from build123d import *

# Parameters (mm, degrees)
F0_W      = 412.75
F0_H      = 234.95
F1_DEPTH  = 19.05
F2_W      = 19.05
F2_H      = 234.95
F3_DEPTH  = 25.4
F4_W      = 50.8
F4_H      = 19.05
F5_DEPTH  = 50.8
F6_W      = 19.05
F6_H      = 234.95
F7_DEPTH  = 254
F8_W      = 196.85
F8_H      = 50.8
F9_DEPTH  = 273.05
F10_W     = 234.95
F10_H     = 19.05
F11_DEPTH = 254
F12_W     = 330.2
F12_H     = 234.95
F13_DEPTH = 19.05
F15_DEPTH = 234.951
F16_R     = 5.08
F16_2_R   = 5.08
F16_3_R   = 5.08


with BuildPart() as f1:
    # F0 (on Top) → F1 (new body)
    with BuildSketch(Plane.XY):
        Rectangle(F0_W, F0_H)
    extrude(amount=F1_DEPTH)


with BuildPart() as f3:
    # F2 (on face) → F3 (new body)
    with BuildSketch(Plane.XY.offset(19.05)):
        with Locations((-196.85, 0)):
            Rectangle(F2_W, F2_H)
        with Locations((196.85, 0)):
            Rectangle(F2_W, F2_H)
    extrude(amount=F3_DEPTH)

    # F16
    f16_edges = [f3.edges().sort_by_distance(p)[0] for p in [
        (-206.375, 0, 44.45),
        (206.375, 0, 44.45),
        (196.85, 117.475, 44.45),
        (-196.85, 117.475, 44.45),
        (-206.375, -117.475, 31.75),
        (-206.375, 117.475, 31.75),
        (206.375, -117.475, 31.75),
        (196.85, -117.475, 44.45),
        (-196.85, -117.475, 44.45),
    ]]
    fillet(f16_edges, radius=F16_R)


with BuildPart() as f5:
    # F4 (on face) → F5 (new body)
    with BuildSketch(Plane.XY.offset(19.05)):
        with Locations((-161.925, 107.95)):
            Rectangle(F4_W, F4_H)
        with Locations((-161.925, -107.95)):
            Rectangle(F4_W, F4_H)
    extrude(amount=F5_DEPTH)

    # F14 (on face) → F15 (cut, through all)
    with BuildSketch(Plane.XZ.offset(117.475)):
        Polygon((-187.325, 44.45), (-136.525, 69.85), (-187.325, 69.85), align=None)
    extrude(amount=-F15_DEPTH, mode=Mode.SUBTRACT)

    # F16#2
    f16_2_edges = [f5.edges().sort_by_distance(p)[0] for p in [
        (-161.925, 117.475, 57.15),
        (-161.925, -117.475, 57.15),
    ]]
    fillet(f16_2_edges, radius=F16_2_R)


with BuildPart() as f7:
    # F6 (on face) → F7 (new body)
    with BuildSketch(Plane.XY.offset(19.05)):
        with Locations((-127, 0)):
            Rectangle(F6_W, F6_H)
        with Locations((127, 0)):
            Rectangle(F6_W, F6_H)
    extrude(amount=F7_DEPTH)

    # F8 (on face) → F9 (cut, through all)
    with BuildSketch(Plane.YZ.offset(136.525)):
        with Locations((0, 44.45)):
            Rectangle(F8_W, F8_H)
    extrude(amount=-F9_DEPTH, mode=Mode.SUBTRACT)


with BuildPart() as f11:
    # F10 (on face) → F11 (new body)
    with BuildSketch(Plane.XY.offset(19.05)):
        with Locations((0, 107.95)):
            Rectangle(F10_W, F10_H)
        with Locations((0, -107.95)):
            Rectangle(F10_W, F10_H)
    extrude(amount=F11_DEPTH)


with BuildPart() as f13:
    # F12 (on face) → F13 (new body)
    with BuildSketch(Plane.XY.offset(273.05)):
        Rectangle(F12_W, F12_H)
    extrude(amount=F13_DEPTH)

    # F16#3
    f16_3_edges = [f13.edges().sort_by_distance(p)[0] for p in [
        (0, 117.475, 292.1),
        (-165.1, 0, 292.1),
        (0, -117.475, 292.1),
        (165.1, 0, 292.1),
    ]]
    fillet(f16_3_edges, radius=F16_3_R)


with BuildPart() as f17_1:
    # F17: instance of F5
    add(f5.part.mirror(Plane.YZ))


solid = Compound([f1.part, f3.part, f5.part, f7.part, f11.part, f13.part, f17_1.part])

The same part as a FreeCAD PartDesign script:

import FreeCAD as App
import Part
import Sketcher

V = App.Vector
Q = App.Units.Quantity


def edges_at(feature, points):
    """Names of the edges that pass closest to the given points."""
    edges = feature.Shape.Edges
    near = lambda p: min(range(len(edges)), key=lambda i: edges[i].distToShape(Part.Vertex(*p))[0])
    return sorted({f"Edge{near(p) + 1}" for p in points})


def add_polygon(sketch, points):
    """Adds a closed chain of lines whose ends are joined by coincident constraints."""
    first, n = sketch.GeometryCount, len(points)
    for a, b in zip(points, points[1:] + points[:1]):
        sketch.addGeometry(Part.LineSegment(App.Vector(*a, 0), App.Vector(*b, 0)), False)
    for i in range(n):
        sketch.addConstraint(Sketcher.Constraint("Coincident", first + i, 2, first + (i + 1) % n, 1))

doc = App.newDocument("Part")
params = doc.addObject("Spreadsheet::Sheet", "Params")
for row, (alias, value) in enumerate([
    ("sketch1_width", "16.25 in"),
    ("sketch1_height", "9.25 in"),
    ("pad1_length", "0.75 in"),
    ("sketch2_width", "0.75 in"),
    ("sketch2_height", "9.25 in"),
    ("pad2_length", "1 in"),
    ("fillet_radius", "0.2 in"),
    ("sketch3_width", "2 in"),
    ("sketch3_height", "0.75 in"),
    ("pad3_length", "2 in"),
    ("sketch4_width", "2 in"),
    ("sketch4_height", "1 in"),
    ("fillet2_radius", "0.2 in"),
    ("sketch5_width", "0.75 in"),
    ("sketch5_height", "9.25 in"),
    ("pad4_length", "10 in"),
    ("sketch6_height", "2 in"),
    ("sketch6_width", "7.75 in"),
    ("sketch7_width", "9.25 in"),
    ("sketch7_height", "0.75 in"),
    ("pad5_length", "10 in"),
    ("sketch8_width", "13 in"),
    ("sketch8_height", "9.25 in"),
    ("pad6_length", "0.75 in"),
    ("fillet3_radius", "0.2 in"),
], start=1):
    params.set(f"A{row}", alias)
    params.set(f"B{row}", "=" + value)
    params.setAlias(f"B{row}", alias)

body = doc.addObject("PartDesign::Body", "Body")

# Sketch on XY plane
sketch1 = doc.addObject("Sketcher::SketchObject", "Sketch")
body.addObject(sketch1)
sketch1.AttachmentSupport = (doc.XY_Plane, [""])
sketch1.MapMode = "FlatFace"
add_polygon(sketch1, [(-206, 117), (-206, -117), (206, -117), (206, 117)])  # lines 0-3
sketch1.addConstraint([
    Sketcher.Constraint("Vertical", 0),
    Sketcher.Constraint("Horizontal", 1),
    Sketcher.Constraint("Vertical", 2),
    Sketcher.Constraint("Horizontal", 3),
    Sketcher.Constraint("Symmetric", 0, 2, 2, 2, -1, 1),
    Sketcher.Constraint("DistanceX", 1, 1, 1, 2, Q("16.25 in")),
    Sketcher.Constraint("DistanceY", 0, 2, 0, 1, Q("9.25 in")),
])
sketch1.setExpression("Constraints[9]", "Params.sketch1_width")
sketch1.setExpression("Constraints[10]", "Params.sketch1_height")
pad1 = doc.addObject("PartDesign::Pad", "Pad")
body.addObject(pad1)
pad1.Profile = sketch1
pad1.setExpression("Length", "Params.pad1_length")
body2 = doc.addObject("PartDesign::Body", "Body001")
body2.AllowCompound = True

# Sketch on XY plane
sketch2 = doc.addObject("Sketcher::SketchObject", "Sketch001")
body2.addObject(sketch2)
sketch2.AttachmentSupport = (doc.getObject("XY_Plane001"), [""])
sketch2.MapMode = "FlatFace"
sketch2.AttachmentOffset = App.Placement(V(0, 0, 0.75 * 25.4), App.Rotation())
add_polygon(sketch2, [(-206, 117), (-206, -117), (-187, -117), (-187, 117)])  # lines 0-3
add_polygon(sketch2, [(187, 117), (187, -117), (206, -117), (206, 117)])  # lines 4-7
sketch2.addConstraint([
    Sketcher.Constraint("Vertical", 0),
    Sketcher.Constraint("Horizontal", 1),
    Sketcher.Constraint("Vertical", 2),
    Sketcher.Constraint("Horizontal", 3),
    Sketcher.Constraint("Vertical", 4),
    Sketcher.Constraint("Horizontal", 5),
    Sketcher.Constraint("Vertical", 6),
    Sketcher.Constraint("Horizontal", 7),
    Sketcher.Constraint("Symmetric", 2, 2, 4, 2, -1, 1),
    Sketcher.Constraint("Symmetric", 0, 2, 6, 2, -1, 1),
    Sketcher.Constraint("Horizontal", 1, 2, 4, 2),
    Sketcher.Constraint("DistanceX", 1, 1, 1, 2, Q("0.75 in")),
    Sketcher.Constraint("DistanceY", 0, 2, 0, 1, Q("9.25 in")),
    Sketcher.Constraint("DistanceX", 0, 2, 4, 2, Q("15.5 in")),
])
sketch2.setExpression("Constraints[19]", "Params.sketch2_width")
sketch2.setExpression("Constraints[20]", "Params.sketch2_height")
pad2 = doc.addObject("PartDesign::Pad", "Pad001")
body2.addObject(pad2)
pad2.Profile = sketch2
pad2.setExpression("Length", "Params.pad2_length")
doc.recompute()

fillet = doc.addObject("PartDesign::Fillet", "Fillet")
body2.addObject(fillet)
fillet.Base = (pad2, edges_at(pad2, [
    (-206.375, 0, 44.45),
    (206.375, 0, 44.45),
    (196.85, 117.475, 44.45),
    (-196.85, 117.475, 44.45),
    (-206.375, -117.475, 31.75),
    (-206.375, 117.475, 31.75),
    (206.375, -117.475, 31.75),
    (196.85, -117.475, 44.45),
    (-196.85, -117.475, 44.45),
]))
fillet.setExpression("Radius", "Params.fillet_radius")
body3 = doc.addObject("PartDesign::Body", "Body002")
body3.AllowCompound = True

# Sketch on XY plane
sketch3 = doc.addObject("Sketcher::SketchObject", "Sketch002")
body3.addObject(sketch3)
sketch3.AttachmentSupport = (doc.getObject("XY_Plane002"), [""])
sketch3.MapMode = "FlatFace"
sketch3.AttachmentOffset = App.Placement(V(0, 0, 0.75 * 25.4), App.Rotation())
add_polygon(sketch3, [(-187, 117), (-187, 98), (-137, 98), (-137, 117)])  # lines 0-3
add_polygon(sketch3, [(-187, -98), (-187, -117), (-137, -117), (-137, -98)])  # lines 4-7
sketch3.addConstraint([
    Sketcher.Constraint("Vertical", 0),
    Sketcher.Constraint("Horizontal", 1),
    Sketcher.Constraint("Vertical", 2),
    Sketcher.Constraint("Horizontal", 3),
    Sketcher.Constraint("Vertical", 4),
    Sketcher.Constraint("Horizontal", 5),
    Sketcher.Constraint("Vertical", 6),
    Sketcher.Constraint("Horizontal", 7),
    Sketcher.Constraint("Symmetric", 3, 2, 4, 2, -1),
    Sketcher.Constraint("Symmetric", 1, 2, 6, 2, -1),
    Sketcher.Constraint("DistanceX", 1, 1, 1, 2, Q("2 in")),
    Sketcher.Constraint("DistanceY", 0, 2, 0, 1, Q("0.75 in")),
    Sketcher.Constraint("DistanceY", 4, 2, 0, 2, Q("8.5 in")),
    Sketcher.Constraint("DistanceX", 0, 2, -1, 1, Q("7.375 in")),
])
sketch3.setExpression("Constraints[18]", "Params.sketch3_width")
sketch3.setExpression("Constraints[19]", "Params.sketch3_height")
pad3 = doc.addObject("PartDesign::Pad", "Pad002")
body3.addObject(pad3)
pad3.Profile = sketch3
pad3.setExpression("Length", "Params.pad3_length")

# Sketch on XZ plane
sketch4 = doc.addObject("Sketcher::SketchObject", "Sketch003")
body3.addObject(sketch4)
sketch4.AttachmentSupport = (doc.getObject("XZ_Plane002"), [""])
sketch4.MapMode = "FlatFace"
sketch4.AttachmentOffset = App.Placement(V(0, 0, 4.625 * 25.4), App.Rotation())
add_polygon(sketch4, [(-187, 44), (-137, 70), (-187, 70)])  # lines 0-2
sketch4.addConstraint([
    Sketcher.Constraint("Horizontal", 1),
    Sketcher.Constraint("Vertical", 2),
    Sketcher.Constraint("DistanceX", 1, 2, 1, 1, Q("2 in")),
    Sketcher.Constraint("DistanceY", 2, 2, 2, 1, Q("1 in")),
    Sketcher.Constraint("DistanceY", -1, 1, 0, 2, Q("2.75 in")),
    Sketcher.Constraint("DistanceX", 0, 2, -1, 1, Q("5.375 in")),
])
sketch4.setExpression("Constraints[5]", "Params.sketch4_width")
sketch4.setExpression("Constraints[6]", "Params.sketch4_height")
pocket1 = doc.addObject("PartDesign::Pocket", "Pocket")
body3.addObject(pocket1)
pocket1.Profile = sketch4
pocket1.Type = "ThroughAll"
doc.recompute()

fillet2 = doc.addObject("PartDesign::Fillet", "Fillet001")
body3.addObject(fillet2)
fillet2.Base = (pocket1, edges_at(pocket1, [(-161.925, 117.475, 57.15), (-161.925, -117.475, 57.15)]))
fillet2.setExpression("Radius", "Params.fillet2_radius")
body4 = doc.addObject("PartDesign::Body", "Body003")
body4.AllowCompound = True

# Sketch on XY plane
sketch5 = doc.addObject("Sketcher::SketchObject", "Sketch004")
body4.addObject(sketch5)
sketch5.AttachmentSupport = (doc.getObject("XY_Plane003"), [""])
sketch5.MapMode = "FlatFace"
sketch5.AttachmentOffset = App.Placement(V(0, 0, 0.75 * 25.4), App.Rotation())
add_polygon(sketch5, [(-137, 117), (-137, -117), (-117, -117), (-117, 117)])  # lines 0-3
add_polygon(sketch5, [(117, 117), (117, -117), (137, -117), (137, 117)])  # lines 4-7
sketch5.addConstraint([
    Sketcher.Constraint("Vertical", 0),
    Sketcher.Constraint("Horizontal", 1),
    Sketcher.Constraint("Vertical", 2),
    Sketcher.Constraint("Horizontal", 3),
    Sketcher.Constraint("Vertical", 4),
    Sketcher.Constraint("Horizontal", 5),
    Sketcher.Constraint("Vertical", 6),
    Sketcher.Constraint("Horizontal", 7),
    Sketcher.Constraint("Symmetric", 2, 2, 4, 2, -1, 1),
    Sketcher.Constraint("Symmetric", 0, 2, 6, 2, -1, 1),
    Sketcher.Constraint("Horizontal", 1, 2, 4, 2),
    Sketcher.Constraint("DistanceX", 0, 2, 4, 2, Q("10 in")),
    Sketcher.Constraint("DistanceX", 1, 1, 1, 2, Q("0.75 in")),
    Sketcher.Constraint("DistanceY", 0, 2, 0, 1, Q("9.25 in")),
])
sketch5.setExpression("Constraints[20]", "Params.sketch5_width")
sketch5.setExpression("Constraints[21]", "Params.sketch5_height")
pad4 = doc.addObject("PartDesign::Pad", "Pad003")
body4.addObject(pad4)
pad4.Profile = sketch5
pad4.setExpression("Length", "Params.pad4_length")

# Sketch on YZ plane
sketch6 = doc.addObject("Sketcher::SketchObject", "Sketch005")
body4.addObject(sketch6)
sketch6.AttachmentSupport = (doc.getObject("YZ_Plane003"), [""])
sketch6.MapMode = "FlatFace"
sketch6.AttachmentOffset = App.Placement(V(0, 0, 5.375 * 25.4), App.Rotation())
add_polygon(sketch6, [(-98, 70), (-98, 19), (98, 19), (98, 70)])  # lines 0-3
sketch6.addConstraint([
    Sketcher.Constraint("Vertical", 0),
    Sketcher.Constraint("Horizontal", 1),
    Sketcher.Constraint("Vertical", 2),
    Sketcher.Constraint("Horizontal", 3),
    Sketcher.Constraint("DistanceY", 0, 2, 0, 1, Q("2 in")),
    Sketcher.Constraint("DistanceX", 1, 1, 1, 2, Q("7.75 in")),
    Sketcher.Constraint("DistanceY", -1, 1, 0, 2, Q("0.75 in")),
    Sketcher.Constraint("DistanceX", 0, 2, -1, 1, Q("3.875 in")),
])
sketch6.setExpression("Constraints[8]", "Params.sketch6_height")
sketch6.setExpression("Constraints[9]", "Params.sketch6_width")
pocket2 = doc.addObject("PartDesign::Pocket", "Pocket001")
body4.addObject(pocket2)
pocket2.Profile = sketch6
pocket2.Type = "ThroughAll"
body5 = doc.addObject("PartDesign::Body", "Body004")
body5.AllowCompound = True

# Sketch on XY plane
sketch7 = doc.addObject("Sketcher::SketchObject", "Sketch006")
body5.addObject(sketch7)
sketch7.AttachmentSupport = (doc.getObject("XY_Plane004"), [""])
sketch7.MapMode = "FlatFace"
sketch7.AttachmentOffset = App.Placement(V(0, 0, 0.75 * 25.4), App.Rotation())
add_polygon(sketch7, [(-117, 117), (-117, 98), (117, 98), (117, 117)])  # lines 0-3
add_polygon(sketch7, [(-117, -98), (-117, -117), (117, -117), (117, -98)])  # lines 4-7
sketch7.addConstraint([
    Sketcher.Constraint("Vertical", 0),
    Sketcher.Constraint("Horizontal", 1),
    Sketcher.Constraint("Vertical", 2),
    Sketcher.Constraint("Horizontal", 3),
    Sketcher.Constraint("Vertical", 4),
    Sketcher.Constraint("Horizontal", 5),
    Sketcher.Constraint("Vertical", 6),
    Sketcher.Constraint("Horizontal", 7),
    Sketcher.Constraint("Symmetric", 2, 2, 4, 2, -1, 1),
    Sketcher.Constraint("Symmetric", 0, 2, 6, 2, -1, 1),
    Sketcher.Constraint("Vertical", 3, 2, 4, 2),
    Sketcher.Constraint("DistanceX", 1, 1, 1, 2, Q("9.25 in")),
    Sketcher.Constraint("DistanceY", 0, 2, 0, 1, Q("0.75 in")),
    Sketcher.Constraint("DistanceY", 4, 2, 0, 2, Q("8.5 in")),
])
sketch7.setExpression("Constraints[19]", "Params.sketch7_width")
sketch7.setExpression("Constraints[20]", "Params.sketch7_height")
pad5 = doc.addObject("PartDesign::Pad", "Pad004")
body5.addObject(pad5)
pad5.Profile = sketch7
pad5.setExpression("Length", "Params.pad5_length")
body6 = doc.addObject("PartDesign::Body", "Body005")

# Sketch on XY plane
sketch8 = doc.addObject("Sketcher::SketchObject", "Sketch007")
body6.addObject(sketch8)
sketch8.AttachmentSupport = (doc.getObject("XY_Plane005"), [""])
sketch8.MapMode = "FlatFace"
sketch8.AttachmentOffset = App.Placement(V(0, 0, 10.75 * 25.4), App.Rotation())
add_polygon(sketch8, [(-165, 117), (-165, -117), (165, -117), (165, 117)])  # lines 0-3
sketch8.addConstraint([
    Sketcher.Constraint("Vertical", 0),
    Sketcher.Constraint("Horizontal", 1),
    Sketcher.Constraint("Vertical", 2),
    Sketcher.Constraint("Horizontal", 3),
    Sketcher.Constraint("Symmetric", 0, 2, 2, 2, -1, 1),
    Sketcher.Constraint("DistanceX", 1, 1, 1, 2, Q("13 in")),
    Sketcher.Constraint("DistanceY", 0, 2, 0, 1, Q("9.25 in")),
])
sketch8.setExpression("Constraints[9]", "Params.sketch8_width")
sketch8.setExpression("Constraints[10]", "Params.sketch8_height")
pad6 = doc.addObject("PartDesign::Pad", "Pad005")
body6.addObject(pad6)
pad6.Profile = sketch8
pad6.setExpression("Length", "Params.pad6_length")
doc.recompute()

fillet3 = doc.addObject("PartDesign::Fillet", "Fillet002")
body6.addObject(fillet3)
fillet3.Base = (pad6, edges_at(pad6, [
    (0, 117.475, 292.1),
    (-165.1, 0, 292.1),
    (0, -117.475, 292.1),
    (165.1, 0, 292.1),
]))
fillet3.setExpression("Radius", "Params.fillet3_radius")
body7 = doc.addObject("PartDesign::Body", "Body006")
body7.AllowCompound = True
doc.recompute()

mirroring = doc.addObject("Part::Mirroring", "Mirroring")
mirroring.Source = body3
mirroring.Base = V(0, 0, 0)
mirroring.Normal = V(1, 0, 0)
body7.BaseFeature = mirroring
doc.recompute()
mirroring.Visibility = False

doc.recompute()
